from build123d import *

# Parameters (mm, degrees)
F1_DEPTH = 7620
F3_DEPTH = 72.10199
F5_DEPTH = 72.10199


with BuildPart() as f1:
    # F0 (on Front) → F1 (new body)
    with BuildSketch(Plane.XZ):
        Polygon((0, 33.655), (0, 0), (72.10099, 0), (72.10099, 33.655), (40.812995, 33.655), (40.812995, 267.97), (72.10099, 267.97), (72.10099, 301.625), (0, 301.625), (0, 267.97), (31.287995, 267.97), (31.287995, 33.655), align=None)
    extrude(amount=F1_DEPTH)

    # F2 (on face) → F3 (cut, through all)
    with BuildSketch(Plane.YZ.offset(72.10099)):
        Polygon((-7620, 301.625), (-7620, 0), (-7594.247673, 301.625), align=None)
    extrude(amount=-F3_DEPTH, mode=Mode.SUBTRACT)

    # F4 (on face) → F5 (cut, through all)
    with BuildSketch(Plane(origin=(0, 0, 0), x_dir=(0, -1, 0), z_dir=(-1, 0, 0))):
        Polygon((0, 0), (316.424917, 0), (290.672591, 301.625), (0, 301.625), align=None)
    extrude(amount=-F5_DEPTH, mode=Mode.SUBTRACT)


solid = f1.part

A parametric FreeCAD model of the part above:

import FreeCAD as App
import Part
import Sketcher
Q = App.Units.Quantity


def add_polygon(sketch, points):
    """Adds a closed chain of lines whose ends are joined by coincident constraints."""
    first, n = sketch.GeometryCount, len(points)
    for a, b in zip(points, points[1:] + points[:1]):
        sketch.addGeometry(Part.LineSegment(App.Vector(*a, 0), App.Vector(*b, 0)), False)
    for i in range(n):
        sketch.addConstraint(Sketcher.Constraint("Coincident", first + i, 2, first + (i + 1) % n, 1))

doc = App.newDocument("Part")
body = doc.addObject("PartDesign::Body", "Body")

# Sketch on XZ plane
sketch1 = body.newObject("Sketcher::SketchObject", "Sketch")
sketch1.AttachmentSupport = (doc.getObject("XZ_Plane"), [""])
sketch1.MapMode = "FlatFace"
add_polygon(sketch1, [(0, 34), (0, 0), (72, 0), (72, 34), (41, 34), (41, 268), (72, 268), (72, 302), (0, 302), (0, 268), (31, 268), (31, 34)])  # lines 0-11
sketch1.addConstraint([
    Sketcher.Constraint("Vertical", 0),
    Sketcher.Constraint("Horizontal", 1),
    Sketcher.Constraint("Vertical", 2),
    Sketcher.Constraint("Horizontal", 3),
    Sketcher.Constraint("Vertical", 4),
    Sketcher.Constraint("Horizontal", 5),
    Sketcher.Constraint("Vertical", 6),
    Sketcher.Constraint("Horizontal", 7),
    Sketcher.Constraint("Vertical", 8),
    Sketcher.Constraint("Horizontal", 9),
    Sketcher.Constraint("Vertical", 10),
    Sketcher.Constraint("Horizontal", 11),
    Sketcher.Constraint("Coincident", 0, 2, -1, 1),
    Sketcher.Constraint("PointOnObject", 7, 2, -2),
    Sketcher.Constraint("Horizontal", 5, 2, 8, 2),
    Sketcher.Constraint("Horizontal", 3, 2, 10, 2),
    Sketcher.Constraint("Vertical", 2, 2, 5, 2),
    Sketcher.Constraint("Equal", 5, 9),
    Sketcher.Constraint("Equal", 2, 6),
    Sketcher.Constraint("DistanceY", 0, 2, 0, 1, Q("1.325 in")),
    Sketcher.Constraint("DistanceY", 4, 1, 4, 2, Q("9.225 in")),
    Sketcher.Constraint("DistanceX", 9, 2, 4, 2, Q("0.375 in")),
    Sketcher.Constraint("DistanceX", 1, 1, 1, 2, Q("72.10099 mm")),
])
pad1 = body.newObject("PartDesign::Pad", "Pad")
pad1.Profile = sketch1
pad1.Length = Q("300 in")

# Sketch on YZ plane
sketch2 = body.newObject("Sketcher::SketchObject", "Sketch001")
sketch2.AttachmentSupport = (doc.getObject("YZ_Plane"), [""])
sketch2.MapMode = "FlatFace"
sketch2.AttachmentOffset = App.Placement(App.Vector(0, 0, 72.10099), App.Rotation())
add_polygon(sketch2, [(-7620, 302), (-7620, 0), (-7594, 302)])  # lines 0-2
sketch2.addConstraint([
    Sketcher.Constraint("Vertical", 0),
    Sketcher.Constraint("Horizontal", 2),
    Sketcher.Constraint("PointOnObject", 0, 2, -1),
    Sketcher.Constraint("DistanceX", 0, 2, -1, 1, Q("300 in")),
    Sketcher.Constraint("DistanceY", 0, 2, 0, 1, Q("11.875 in")),
    Sketcher.Constraint("Angle", 1, Q("85.12 deg")),
])
pocket1 = body.newObject("PartDesign::Pocket", "Pocket")
pocket1.Profile = sketch2
pocket1.Type = "ThroughAll"

# Sketch on YZ plane
sketch3 = body.newObject("Sketcher::SketchObject", "Sketch002")
sketch3.AttachmentSupport = (doc.getObject("YZ_Plane"), [""])
sketch3.MapMode = "FlatFace"
add_polygon(sketch3, [(0, 0), (-316, 0), (-291, 302), (0, 302)])  # lines 0-3
sketch3.addConstraint([
    Sketcher.Constraint("Horizontal", 0),
    Sketcher.Constraint("Horizontal", 2),
    Sketcher.Constraint("Vertical", 3),
    Sketcher.Constraint("Coincident", 3, 2, -1, 1),
    Sketcher.Constraint("DistanceY", 3, 2, 3, 1, Q("11.875 in")),
    Sketcher.Constraint("Angle", 1, Q("85.12 deg")),
    Sketcher.Constraint("DistanceX", 2, 1, 2, 2, Q("290.672591 mm")),
])
pocket2 = body.newObject("PartDesign::Pocket", "Pocket001")
pocket2.Profile = sketch3
pocket2.Type = "ThroughAll"
pocket2.Reversed = True

doc.recompute()
